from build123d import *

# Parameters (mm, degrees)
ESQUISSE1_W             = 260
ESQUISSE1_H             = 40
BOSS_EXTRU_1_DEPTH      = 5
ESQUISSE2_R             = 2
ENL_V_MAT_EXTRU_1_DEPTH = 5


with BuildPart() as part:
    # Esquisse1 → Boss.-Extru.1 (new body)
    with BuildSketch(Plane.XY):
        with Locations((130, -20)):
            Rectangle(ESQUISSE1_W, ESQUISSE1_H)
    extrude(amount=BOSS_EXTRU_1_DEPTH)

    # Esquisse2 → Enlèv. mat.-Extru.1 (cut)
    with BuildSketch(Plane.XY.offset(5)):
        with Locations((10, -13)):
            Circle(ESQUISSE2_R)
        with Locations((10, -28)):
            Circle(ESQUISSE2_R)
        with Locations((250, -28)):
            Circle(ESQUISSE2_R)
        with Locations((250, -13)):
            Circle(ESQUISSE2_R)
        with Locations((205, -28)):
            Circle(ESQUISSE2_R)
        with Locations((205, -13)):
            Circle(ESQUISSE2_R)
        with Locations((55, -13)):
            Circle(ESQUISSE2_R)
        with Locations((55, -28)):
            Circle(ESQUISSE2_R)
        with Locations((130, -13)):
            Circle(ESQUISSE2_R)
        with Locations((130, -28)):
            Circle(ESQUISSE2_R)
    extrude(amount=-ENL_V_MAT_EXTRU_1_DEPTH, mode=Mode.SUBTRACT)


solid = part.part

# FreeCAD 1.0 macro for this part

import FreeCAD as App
import Part
import Sketcher

V = App.Vector
Q = App.Units.Quantity


def add_polygon(sketch, points):
    """Adds a closed chain of lines whose ends are joined by coincident constraints."""
    first, n = sketch.GeometryCount, len(points)
    for a, b in zip(points, points[1:] + points[:1]):
        sketch.addGeometry(Part.LineSegment(App.Vector(*a, 0), App.Vector(*b, 0)), False)
    for i in range(n):
        sketch.addConstraint(Sketcher.Constraint("Coincident", first + i, 2, first + (i + 1) % n, 1))

doc = App.newDocument("Part")
params = doc.addObject("Spreadsheet::Sheet", "Params")
for row, (alias, value) in enumerate([
    ("sketch1_width", "260 mm"),
    ("sketch1_height", "40 mm"),
    ("pad1_length", "5 mm"),
    ("sketch2_diameter", "4 mm"),
    ("pocket1_length", "5 mm"),
], start=1):
    params.set(f"A{row}", alias)
    params.set(f"B{row}", "=" + value)
    params.setAlias(f"B{row}", alias)

body = doc.addObject("PartDesign::Body", "Body")

# Sketch on XY plane
sketch1 = body.newObject("Sketcher::SketchObject", "Sketch")
sketch1.AttachmentSupport = (doc.getObject("XY_Plane"), [""])
sketch1.MapMode = "FlatFace"
add_polygon(sketch1, [(0, 0), (0, -40), (260, -40), (260, 0)])  # lines 0-3
sketch1.addConstraint(Sketcher.Constraint("Vertical", 0))
sketch1.addConstraint(Sketcher.Constraint("Horizontal", 1))
sketch1.addConstraint(Sketcher.Constraint("Vertical", 2))
sketch1.addConstraint(Sketcher.Constraint("Horizontal", 3))
sketch1.addConstraint(Sketcher.Constraint("Coincident", 3, 2, -1, 1))
sketch1.addConstraint(Sketcher.Constraint("DistanceX", 1, 1, 1, 2, Q("260 mm")))
sketch1.addConstraint(Sketcher.Constraint("DistanceY", 0, 2, 0, 1, Q("40 mm")))
sketch1.setExpression("Constraints[9]", "Params.sketch1_width")
sketch1.setExpression("Constraints[10]", "Params.sketch1_height")
pad1 = body.newObject("PartDesign::Pad", "Pad")
pad1.Profile = sketch1
pad1.setExpression("Length", "Params.pad1_length")

# Sketch on XY plane
sketch2 = body.newObject("Sketcher::SketchObject", "Sketch001")
sketch2.AttachmentSupport = (doc.getObject("XY_Plane"), [""])
sketch2.MapMode = "FlatFace"
sketch2.AttachmentOffset = App.Placement(V(0, 0, 5), App.Rotation())
sketch2.addGeometry(Part.Circle(V(10, -13, 0), V(0, 0, 1), 2), False)
sketch2.addGeometry(Part.Circle(V(10, -28, 0), V(0, 0, 1), 2), False)
sketch2.addGeometry(Part.Circle(V(250, -28, 0), V(0, 0, 1), 2), False)
sketch2.addGeometry(Part.Circle(V(250, -13, 0), V(0, 0, 1), 2), False)
sketch2.addGeometry(Part.Circle(V(205, -28, 0), V(0, 0, 1), 2), False)
sketch2.addGeometry(Part.Circle(V(205, -13, 0), V(0, 0, 1), 2), False)
sketch2.addGeometry(Part.Circle(V(55, -13, 0), V(0, 0, 1), 2), False)
sketch2.addGeometry(Part.Circle(V(55, -28, 0), V(0, 0, 1), 2), False)
sketch2.addGeometry(Part.Circle(V(130, -13, 0), V(0, 0, 1), 2), False)
sketch2.addGeometry(Part.Circle(V(130, -28, 0), V(0, 0, 1), 2), False)
sketch2.addConstraint(Sketcher.Constraint("Equal", 0, 1))
sketch2.addConstraint(Sketcher.Constraint("Equal", 1, 2))
sketch2.addConstraint(Sketcher.Constraint("Equal", 2, 3))
sketch2.addConstraint(Sketcher.Constraint("Equal", 3, 4))
sketch2.addConstraint(Sketcher.Constraint("Equal", 4, 5))
sketch2.addConstraint(Sketcher.Constraint("Equal", 5, 6))
sketch2.addConstraint(Sketcher.Constraint("Equal", 6, 7))
sketch2.addConstraint(Sketcher.Constraint("Equal", 7, 8))
sketch2.addConstraint(Sketcher.Constraint("Equal", 8, 9))
sketch2.addConstraint(Sketcher.Constraint("Horizontal", 1, 3, 2, 3))
sketch2.addConstraint(Sketcher.Constraint("Horizontal", 0, 3, 3, 3))
sketch2.addConstraint(Sketcher.Constraint("Horizontal", 2, 3, 4, 3))
sketch2.addConstraint(Sketcher.Constraint("Horizontal", 3, 3, 5, 3))
sketch2.addConstraint(Sketcher.Constraint("Horizontal", 5, 3, 6, 3))
sketch2.addConstraint(Sketcher.Constraint("Horizontal", 4, 3, 7, 3))
sketch2.addConstraint(Sketcher.Constraint("Horizontal", 6, 3, 8, 3))
sketch2.addConstraint(Sketcher.Constraint("Horizontal", 7, 3, 9, 3))
sketch2.addConstraint(Sketcher.Constraint("Vertical", 0, 3, 1, 3))
sketch2.addConstraint(Sketcher.Constraint("Vertical", 2, 3, 3, 3))
sketch2.addConstraint(Sketcher.Constraint("Vertical", 4, 3, 5, 3))
sketch2.addConstraint(Sketcher.Constraint("Vertical", 6, 3, 7, 3))
sketch2.addConstraint(Sketcher.Constraint("Vertical", 8, 3, 9, 3))
sketch2.addConstraint(Sketcher.Constraint("Diameter", 0, Q("4 mm")))
sketch2.addConstraint(Sketcher.Constraint("DistanceX", -1, 1, 0, 3, Q("10 mm")))
sketch2.addConstraint(Sketcher.Constraint("DistanceY", 0, 3, -1, 1, Q("13 mm")))
sketch2.addConstraint(Sketcher.Constraint("DistanceY", 1, 3, -1, 1, Q("28 mm")))
sketch2.addConstraint(Sketcher.Constraint("DistanceX", -1, 1, 2, 3, Q("250 mm")))
sketch2.addConstraint(Sketcher.Constraint("DistanceX", -1, 1, 4, 3, Q("205 mm")))
sketch2.addConstraint(Sketcher.Constraint("DistanceX", -1, 1, 6, 3, Q("55 mm")))
sketch2.addConstraint(Sketcher.Constraint("DistanceX", -1, 1, 8, 3, Q("130 mm")))
sketch2.setExpression("Constraints[22]", "Params.sketch2_diameter")
pocket1 = body.newObject("PartDesign::Pocket", "Pocket")
pocket1.Profile = sketch2
pocket1.setExpression("Length", "Params.pocket1_length")

doc.recompute()
